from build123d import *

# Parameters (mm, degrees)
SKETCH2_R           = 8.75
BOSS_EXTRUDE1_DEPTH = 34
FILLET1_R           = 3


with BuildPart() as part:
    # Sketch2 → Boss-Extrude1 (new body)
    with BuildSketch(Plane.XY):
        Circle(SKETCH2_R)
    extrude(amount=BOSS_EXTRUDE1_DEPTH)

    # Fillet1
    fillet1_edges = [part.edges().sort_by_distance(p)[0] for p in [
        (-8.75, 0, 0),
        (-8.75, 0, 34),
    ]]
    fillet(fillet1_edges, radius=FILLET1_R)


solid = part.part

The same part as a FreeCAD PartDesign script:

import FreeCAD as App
import Part
import Sketcher

V = App.Vector
Q = App.Units.Quantity


def edges_at(feature, points):
    """Names of the edges that pass closest to the given points."""
    edges = feature.Shape.Edges
    near = lambda p: min(range(len(edges)), key=lambda i: edges[i].distToShape(Part.Vertex(*p))[0])
    return sorted({f"Edge{near(p) + 1}" for p in points})

doc = App.newDocument("Part")
body = doc.addObject("PartDesign::Body", "Body")

# Sketch on XY plane
sketch1 = doc.addObject("Sketcher::SketchObject", "Sketch")
body.addObject(sketch1)
sketch1.AttachmentSupport = (doc.XY_Plane, [""])
sketch1.MapMode = "FlatFace"
sketch1.addGeometry(Part.Circle(V(0, 0, 0), V(0, 0, 1), 9), False)
sketch1.addConstraint(Sketcher.Constraint("Coincident", 0, 3, -1, 1))
sketch1.addConstraint(Sketcher.Constraint("Diameter", 0, Q("17.5 mm")))
pad1 = doc.addObject("PartDesign::Pad", "Pad")
body.addObject(pad1)
pad1.Profile = sketch1
pad1.Length = 34
doc.recompute()

fillet = doc.addObject("PartDesign::Fillet", "Fillet")
body.addObject(fillet)
fillet.Base = (pad1, edges_at(pad1, [(-8.75, 0, 0), (-8.75, 0, 34)]))
fillet.Radius = 3

doc.recompute()
